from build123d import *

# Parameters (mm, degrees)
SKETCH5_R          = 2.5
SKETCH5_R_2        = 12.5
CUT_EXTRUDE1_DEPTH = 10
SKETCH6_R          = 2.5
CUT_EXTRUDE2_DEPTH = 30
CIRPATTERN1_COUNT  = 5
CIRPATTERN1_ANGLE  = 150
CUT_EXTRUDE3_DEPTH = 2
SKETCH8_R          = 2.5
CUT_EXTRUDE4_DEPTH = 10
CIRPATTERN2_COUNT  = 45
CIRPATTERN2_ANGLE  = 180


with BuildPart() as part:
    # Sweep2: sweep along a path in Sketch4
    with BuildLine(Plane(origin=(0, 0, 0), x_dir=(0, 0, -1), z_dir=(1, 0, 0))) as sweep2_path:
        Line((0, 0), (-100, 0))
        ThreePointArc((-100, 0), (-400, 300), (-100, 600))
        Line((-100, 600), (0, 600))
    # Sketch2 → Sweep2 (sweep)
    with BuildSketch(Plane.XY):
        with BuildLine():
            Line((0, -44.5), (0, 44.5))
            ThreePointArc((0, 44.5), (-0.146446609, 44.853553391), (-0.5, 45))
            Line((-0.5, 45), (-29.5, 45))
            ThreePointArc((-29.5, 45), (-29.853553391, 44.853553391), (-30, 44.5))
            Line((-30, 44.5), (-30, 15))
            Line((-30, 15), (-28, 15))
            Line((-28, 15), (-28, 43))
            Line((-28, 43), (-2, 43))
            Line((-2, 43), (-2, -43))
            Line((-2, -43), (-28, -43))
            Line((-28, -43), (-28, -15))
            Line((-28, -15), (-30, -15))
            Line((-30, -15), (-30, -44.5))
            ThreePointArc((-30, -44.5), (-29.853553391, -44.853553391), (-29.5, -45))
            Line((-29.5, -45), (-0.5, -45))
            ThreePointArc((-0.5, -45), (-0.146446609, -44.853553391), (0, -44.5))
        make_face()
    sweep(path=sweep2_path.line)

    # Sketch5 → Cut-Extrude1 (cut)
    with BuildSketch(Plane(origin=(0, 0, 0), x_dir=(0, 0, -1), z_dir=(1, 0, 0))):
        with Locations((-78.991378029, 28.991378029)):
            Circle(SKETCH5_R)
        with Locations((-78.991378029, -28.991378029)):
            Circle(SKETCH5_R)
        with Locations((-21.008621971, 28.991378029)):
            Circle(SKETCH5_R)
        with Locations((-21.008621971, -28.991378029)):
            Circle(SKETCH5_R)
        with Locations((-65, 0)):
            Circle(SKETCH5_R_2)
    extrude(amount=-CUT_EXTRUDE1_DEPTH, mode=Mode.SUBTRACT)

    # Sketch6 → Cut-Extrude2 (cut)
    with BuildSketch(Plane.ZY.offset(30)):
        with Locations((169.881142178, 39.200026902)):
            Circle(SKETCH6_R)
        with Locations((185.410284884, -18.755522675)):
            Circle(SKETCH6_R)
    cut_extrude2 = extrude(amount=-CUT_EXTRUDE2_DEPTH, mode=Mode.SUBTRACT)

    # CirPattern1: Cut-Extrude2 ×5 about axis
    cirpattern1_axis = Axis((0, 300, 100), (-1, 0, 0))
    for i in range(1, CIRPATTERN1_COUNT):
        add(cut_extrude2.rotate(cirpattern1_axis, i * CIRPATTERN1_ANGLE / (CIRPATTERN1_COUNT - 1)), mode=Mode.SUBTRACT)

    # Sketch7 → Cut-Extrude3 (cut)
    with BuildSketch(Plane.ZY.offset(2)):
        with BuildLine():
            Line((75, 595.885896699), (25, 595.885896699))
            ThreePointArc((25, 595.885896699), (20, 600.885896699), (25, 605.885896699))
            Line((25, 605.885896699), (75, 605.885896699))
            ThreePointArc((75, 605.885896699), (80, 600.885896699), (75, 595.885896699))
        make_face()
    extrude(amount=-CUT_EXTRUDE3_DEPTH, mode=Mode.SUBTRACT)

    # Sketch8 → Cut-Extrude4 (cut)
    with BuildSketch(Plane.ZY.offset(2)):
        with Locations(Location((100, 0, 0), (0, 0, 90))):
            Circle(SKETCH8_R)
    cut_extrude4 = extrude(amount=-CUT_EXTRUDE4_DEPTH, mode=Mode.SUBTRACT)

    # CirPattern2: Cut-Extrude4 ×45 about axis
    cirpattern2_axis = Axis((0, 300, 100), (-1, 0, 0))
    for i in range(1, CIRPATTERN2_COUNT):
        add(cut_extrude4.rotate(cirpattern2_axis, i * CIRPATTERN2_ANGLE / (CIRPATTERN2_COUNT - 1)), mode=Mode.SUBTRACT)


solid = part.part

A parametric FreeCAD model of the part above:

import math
import FreeCAD as App
import Part
import Sketcher

V = App.Vector
Q = App.Units.Quantity

doc = App.newDocument("Part")
body = doc.addObject("PartDesign::Body", "Body")

# Sketch on XY plane
sketch1 = body.newObject("Sketcher::SketchObject", "Sketch")
sketch1.AttachmentSupport = (doc.getObject("XY_Plane"), [""])
sketch1.MapMode = "FlatFace"
sketch1.addGeometry(Part.LineSegment(V(0, -44.5, 0), V(0, 44.5, 0)), False)
sketch1.addGeometry(Part.ArcOfCircle(Part.Circle(V(-0.5, 44.5, 0), V(0, 0, 1), 0.5), math.radians(0), math.radians(90)), False)
sketch1.addGeometry(Part.LineSegment(V(-0.5, 45, 0), V(-29.5, 45, 0)), False)
sketch1.addGeometry(Part.ArcOfCircle(Part.Circle(V(-29.5, 44.5, 0), V(0, 0, 1), 0.5), math.radians(90), math.radians(180)), False)
sketch1.addGeometry(Part.LineSegment(V(-30, 44.5, 0), V(-30, 15, 0)), False)
sketch1.addGeometry(Part.LineSegment(V(-30, 15, 0), V(-28, 15, 0)), False)
sketch1.addGeometry(Part.LineSegment(V(-28, 15, 0), V(-28, 43, 0)), False)
sketch1.addGeometry(Part.LineSegment(V(-28, 43, 0), V(-2, 43, 0)), False)
sketch1.addGeometry(Part.LineSegment(V(-2, 43, 0), V(-2, -43, 0)), False)
sketch1.addGeometry(Part.LineSegment(V(-2, -43, 0), V(-28, -43, 0)), False)
sketch1.addGeometry(Part.LineSegment(V(-28, -43, 0), V(-28, -15, 0)), False)
sketch1.addGeometry(Part.LineSegment(V(-28, -15, 0), V(-30, -15, 0)), False)
sketch1.addGeometry(Part.LineSegment(V(-30, -15, 0), V(-30, -44.5, 0)), False)
sketch1.addGeometry(Part.ArcOfCircle(Part.Circle(V(-29.5, -44.5, 0), V(0, 0, 1), 0.5), math.radians(180), math.radians(270)), False)
sketch1.addGeometry(Part.LineSegment(V(-29.5, -45, 0), V(-0.5, -45, 0)), False)
sketch1.addGeometry(Part.ArcOfCircle(Part.Circle(V(-0.5, -44.5, 0), V(0, 0, 1), 0.5), math.radians(-90), math.radians(0)), False)
sketch1.addConstraint(Sketcher.Constraint("Tangent", 0, 2, 1, 1))
sketch1.addConstraint(Sketcher.Constraint("Tangent", 1, 2, 2, 1))
sketch1.addConstraint(Sketcher.Constraint("Tangent", 2, 2, 3, 1))
sketch1.addConstraint(Sketcher.Constraint("Tangent", 3, 2, 4, 1))
sketch1.addConstraint(Sketcher.Constraint("Coincident", 4, 2, 5, 1))
sketch1.addConstraint(Sketcher.Constraint("Coincident", 5, 2, 6, 1))
sketch1.addConstraint(Sketcher.Constraint("Coincident", 6, 2, 7, 1))
sketch1.addConstraint(Sketcher.Constraint("Coincident", 7, 2, 8, 1))
sketch1.addConstraint(Sketcher.Constraint("Coincident", 8, 2, 9, 1))
sketch1.addConstraint(Sketcher.Constraint("Coincident", 9, 2, 10, 1))
sketch1.addConstraint(Sketcher.Constraint("Coincident", 10, 2, 11, 1))
sketch1.addConstraint(Sketcher.Constraint("Coincident", 11, 2, 12, 1))
sketch1.addConstraint(Sketcher.Constraint("Tangent", 12, 2, 13, 1))
sketch1.addConstraint(Sketcher.Constraint("Tangent", 13, 2, 14, 1))
sketch1.addConstraint(Sketcher.Constraint("Tangent", 14, 2, 15, 1))
sketch1.addConstraint(Sketcher.Constraint("Tangent", 15, 2, 0, 1))
sketch1.addConstraint(Sketcher.Constraint("Vertical", 0))
sketch1.addConstraint(Sketcher.Constraint("Horizontal", 2))
sketch1.addConstraint(Sketcher.Constraint("Vertical", 4))
sketch1.addConstraint(Sketcher.Constraint("Horizontal", 5))
sketch1.addConstraint(Sketcher.Constraint("Vertical", 6))
sketch1.addConstraint(Sketcher.Constraint("Horizontal", 7))
sketch1.addConstraint(Sketcher.Constraint("Vertical", 8))
sketch1.addConstraint(Sketcher.Constraint("Horizontal", 9))
sketch1.addConstraint(Sketcher.Constraint("Vertical", 10))
sketch1.addConstraint(Sketcher.Constraint("Horizontal", 11))
sketch1.addConstraint(Sketcher.Constraint("Vertical", 12))
sketch1.addConstraint(Sketcher.Constraint("Horizontal", 14))
sketch1.addConstraint(Sketcher.Constraint("Equal", 1, 3))
sketch1.addConstraint(Sketcher.Constraint("Equal", 3, 13))
sketch1.addConstraint(Sketcher.Constraint("Equal", 13, 15))
sketch1.addConstraint(Sketcher.Constraint("Symmetric", 0, 2, 15, 2, -1, 1))
sketch1.addConstraint(Sketcher.Constraint("Symmetric", 6, 2, 9, 2, -1))
sketch1.addConstraint(Sketcher.Constraint("Symmetric", 4, 2, 11, 2, -1))
sketch1.addConstraint(Sketcher.Constraint("Radius", 1, Q("0.5 mm")))
sketch1.addConstraint(Sketcher.Constraint("DistanceX", 2, 2, 2, 1, Q("29 mm")))
sketch1.addConstraint(Sketcher.Constraint("DistanceX", 5, 1, 5, 2, Q("2 mm")))
sketch1.addConstraint(Sketcher.Constraint("DistanceX", 7, 1, 7, 2, Q("26 mm")))
sketch1.addConstraint(Sketcher.Constraint("DistanceY", 0, 1, 0, 2, Q("89 mm")))
sketch1.addConstraint(Sketcher.Constraint("DistanceY", 6, 1, 6, 2, Q("28 mm")))
sketch1.addConstraint(Sketcher.Constraint("DistanceY", 8, 2, 8, 1, Q("86 mm")))

# Sketch on YZ plane
sketch2 = body.newObject("Sketcher::SketchObject", "Sketch001")
sketch2.AttachmentSupport = (doc.getObject("YZ_Plane"), [""])
sketch2.MapMode = "FlatFace"
sketch2.addGeometry(Part.LineSegment(V(0, 0, 0), V(0, 100, 0)), False)
sketch2.addGeometry(Part.ArcOfCircle(Part.Circle(V(300, 100, 0), V(0, 0, 1), 300), math.radians(0), math.radians(180)), False)
sketch2.addGeometry(Part.LineSegment(V(600, 100, 0), V(600, 0, 0)), False)
sketch2.addConstraint(Sketcher.Constraint("Tangent", 0, 2, 1, 2))
sketch2.addConstraint(Sketcher.Constraint("Tangent", 1, 1, 2, 1))
sketch2.addConstraint(Sketcher.Constraint("Vertical", 0))
sketch2.addConstraint(Sketcher.Constraint("Vertical", 2))
sketch2.addConstraint(Sketcher.Constraint("Coincident", 0, 1, -1, 1))
sketch2.addConstraint(Sketcher.Constraint("PointOnObject", 2, 2, -1))
sketch2.addConstraint(Sketcher.Constraint("Radius", 1, Q("300 mm")))
sketch2.addConstraint(Sketcher.Constraint("DistanceY", 0, 1, 0, 2, Q("100 mm")))
doc.recompute()

additivepipe = body.newObject("PartDesign::AdditivePipe", "AdditivePipe")
additivepipe.Profile = sketch1
additivepipe.Spine = (sketch2, ["Edge1", "Edge2", "Edge3"])

# Sketch on YZ plane
sketch3 = body.newObject("Sketcher::SketchObject", "Sketch002")
sketch3.AttachmentSupport = (doc.getObject("YZ_Plane"), [""])
sketch3.MapMode = "FlatFace"
sketch3.addGeometry(Part.Circle(V(29, 79, 0), V(0, 0, 1), 2.5), False)
sketch3.addGeometry(Part.Circle(V(-29, 79, 0), V(0, 0, 1), 2.5), False)
sketch3.addGeometry(Part.Circle(V(29, 21, 0), V(0, 0, 1), 2.5), False)
sketch3.addGeometry(Part.Circle(V(-29, 21, 0), V(0, 0, 1), 2.5), False)
sketch3.addGeometry(Part.Circle(V(0, 65, 0), V(0, 0, 1), 12.5), False)
sketch3.addConstraint(Sketcher.Constraint("Equal", 0, 1))
sketch3.addConstraint(Sketcher.Constraint("Equal", 1, 2))
sketch3.addConstraint(Sketcher.Constraint("Equal", 2, 3))
sketch3.addConstraint(Sketcher.Constraint("Symmetric", 0, 3, 1, 3, -2))
sketch3.addConstraint(Sketcher.Constraint("Symmetric", 2, 3, 3, 3, -2))
sketch3.addConstraint(Sketcher.Constraint("PointOnObject", 4, 3, -2))
sketch3.addConstraint(Sketcher.Constraint("Vertical", 0, 3, 2, 3))
sketch3.addConstraint(Sketcher.Constraint("Diameter", 0, Q("5 mm")))
sketch3.addConstraint(Sketcher.Constraint("Diameter", 4, Q("25 mm")))
sketch3.addConstraint(Sketcher.Constraint("DistanceY", -1, 1, 4, 3, Q("65 mm")))
sketch3.addConstraint(Sketcher.Constraint("DistanceX", -1, 1, 0, 3, Q("28.991378 mm")))
sketch3.addConstraint(Sketcher.Constraint("DistanceY", -1, 1, 0, 3, Q("78.991378 mm")))
sketch3.addConstraint(Sketcher.Constraint("DistanceY", -1, 1, 2, 3, Q("21.008622 mm")))
pocket1 = body.newObject("PartDesign::Pocket", "Pocket")
pocket1.Profile = sketch3
pocket1.Length = 10

# Sketch on YZ plane
sketch4 = body.newObject("Sketcher::SketchObject", "Sketch003")
sketch4.AttachmentSupport = (doc.getObject("YZ_Plane"), [""])
sketch4.MapMode = "FlatFace"
sketch4.AttachmentOffset = App.Placement(V(0, 0, -30), App.Rotation())
sketch4.addGeometry(Part.Circle(V(39.2, 169.9, 0), V(0, 0, 1), 2.5), False)
sketch4.addGeometry(Part.Circle(V(-18.8, 185.4, 0), V(0, 0, 1), 2.5), False)
sketch4.addConstraint(Sketcher.Constraint("Equal", 0, 1))
sketch4.addConstraint(Sketcher.Constraint("Diameter", 0, Q("5 mm")))
sketch4.addConstraint(Sketcher.Constraint("DistanceX", 1, 3, 0, 3, Q("57.95555 mm")))
sketch4.addConstraint(Sketcher.Constraint("DistanceX", -1, 1, 0, 3, Q("39.200027 mm")))
sketch4.addConstraint(Sketcher.Constraint("DistanceY", -1, 1, 0, 3, Q("169.881142 mm")))
sketch4.addConstraint(Sketcher.Constraint("DistanceY", -1, 1, 1, 3, Q("185.410285 mm")))
pocket2 = body.newObject("PartDesign::Pocket", "Pocket001")
pocket2.Profile = sketch4
pocket2.Length = 30
pocket2.Reversed = True
doc.recompute()

datumline = body.newObject("PartDesign::Line", "DatumLine")
datumline.Placement = App.Placement(V(0, 300, 100), App.Rotation(V(0, 0, 1), V(-1, 0, 0)))
polarpattern = body.newObject("PartDesign::PolarPattern", "PolarPattern")
polarpattern.Originals = [pocket2]
polarpattern.Axis = (datumline, [""])
polarpattern.Angle = 150
polarpattern.Occurrences = 5
body.Tip = polarpattern

# Sketch on YZ plane
sketch5 = body.newObject("Sketcher::SketchObject", "Sketch004")
sketch5.AttachmentSupport = (doc.getObject("YZ_Plane"), [""])
sketch5.MapMode = "FlatFace"
sketch5.AttachmentOffset = App.Placement(V(0, 0, -2), App.Rotation())
sketch5.addGeometry(Part.LineSegment(V(596, 25, 0), V(596, 75, 0)), False)
sketch5.addGeometry(Part.ArcOfCircle(Part.Circle(V(601, 75, 0), V(0, 0, 1), 5), math.radians(0), math.radians(180)), False)
sketch5.addGeometry(Part.LineSegment(V(606, 75, 0), V(606, 25, 0)), False)
sketch5.addGeometry(Part.ArcOfCircle(Part.Circle(V(601, 25, 0), V(0, 0, 1), 5), math.radians(180), math.radians(360)), False)
sketch5.addConstraint(Sketcher.Constraint("Tangent", 0, 2, 1, 2))
sketch5.addConstraint(Sketcher.Constraint("Tangent", 1, 1, 2, 1))
sketch5.addConstraint(Sketcher.Constraint("Tangent", 2, 2, 3, 2))
sketch5.addConstraint(Sketcher.Constraint("Tangent", 3, 1, 0, 1))
sketch5.addConstraint(Sketcher.Constraint("Vertical", 0))
sketch5.addConstraint(Sketcher.Constraint("Vertical", 2))
sketch5.addConstraint(Sketcher.Constraint("Radius", 1, Q("5 mm")))
sketch5.addConstraint(Sketcher.Constraint("DistanceY", 0, 1, 0, 2, Q("50 mm")))
sketch5.addConstraint(Sketcher.Constraint("DistanceY", -1, 1, 1, 3, Q("75 mm")))
sketch5.addConstraint(Sketcher.Constraint("DistanceX", -1, 1, 1, 3, Q("600.885897 mm")))
pocket3 = body.newObject("PartDesign::Pocket", "Pocket002")
pocket3.Profile = sketch5
pocket3.Length = 2
pocket3.Reversed = True

# Sketch on YZ plane
sketch6 = body.newObject("Sketcher::SketchObject", "Sketch005")
sketch6.AttachmentSupport = (doc.getObject("YZ_Plane"), [""])
sketch6.MapMode = "FlatFace"
sketch6.AttachmentOffset = App.Placement(V(0, 0, -2), App.Rotation())
sketch6.addGeometry(Part.Circle(V(0, 100, 0), V(0, 0, 1), 2.5), False)
sketch6.addConstraint(Sketcher.Constraint("PointOnObject", 0, 3, -2))
sketch6.addConstraint(Sketcher.Constraint("Diameter", 0, Q("5 mm")))
sketch6.addConstraint(Sketcher.Constraint("DistanceY", -1, 1, 0, 3, Q("100 mm")))
pocket4 = body.newObject("PartDesign::Pocket", "Pocket003")
pocket4.Profile = sketch6
pocket4.Length = 10
pocket4.Reversed = True
doc.recompute()

datumline2 = body.newObject("PartDesign::Line", "DatumLine001")
datumline2.Placement = App.Placement(V(0, 300, 100), App.Rotation(V(0, 0, 1), V(-1, 0, 0)))
polarpattern2 = body.newObject("PartDesign::PolarPattern", "PolarPattern001")
polarpattern2.Originals = [pocket4]
polarpattern2.Axis = (datumline2, [""])
polarpattern2.Angle = 180
polarpattern2.Occurrences = 45
body.Tip = polarpattern2

doc.recompute()
